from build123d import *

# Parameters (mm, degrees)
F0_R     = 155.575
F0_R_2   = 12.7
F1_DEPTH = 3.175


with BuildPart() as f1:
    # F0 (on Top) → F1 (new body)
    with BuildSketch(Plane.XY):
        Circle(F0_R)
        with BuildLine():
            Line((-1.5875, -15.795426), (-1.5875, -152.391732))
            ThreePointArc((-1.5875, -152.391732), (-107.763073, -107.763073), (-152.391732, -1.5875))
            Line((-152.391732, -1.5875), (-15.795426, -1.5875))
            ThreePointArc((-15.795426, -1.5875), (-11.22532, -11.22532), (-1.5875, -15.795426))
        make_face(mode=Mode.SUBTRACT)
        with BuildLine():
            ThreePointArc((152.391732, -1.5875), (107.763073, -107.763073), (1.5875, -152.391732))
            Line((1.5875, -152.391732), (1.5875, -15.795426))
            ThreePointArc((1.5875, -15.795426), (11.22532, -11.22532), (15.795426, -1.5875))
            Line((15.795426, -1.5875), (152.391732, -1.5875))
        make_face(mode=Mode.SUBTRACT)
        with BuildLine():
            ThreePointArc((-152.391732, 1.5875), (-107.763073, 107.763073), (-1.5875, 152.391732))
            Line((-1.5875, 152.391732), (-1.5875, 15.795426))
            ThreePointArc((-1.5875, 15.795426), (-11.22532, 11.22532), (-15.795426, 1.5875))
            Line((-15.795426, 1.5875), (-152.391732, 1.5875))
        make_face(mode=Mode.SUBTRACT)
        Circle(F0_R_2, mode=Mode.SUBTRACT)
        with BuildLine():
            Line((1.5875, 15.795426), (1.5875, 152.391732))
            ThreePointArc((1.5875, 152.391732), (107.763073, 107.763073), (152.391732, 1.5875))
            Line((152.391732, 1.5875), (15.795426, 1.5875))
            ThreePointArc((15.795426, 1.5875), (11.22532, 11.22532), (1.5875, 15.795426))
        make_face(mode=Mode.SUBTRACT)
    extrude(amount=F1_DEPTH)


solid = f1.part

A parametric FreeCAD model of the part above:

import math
import FreeCAD as App
import Part
import Sketcher
Q = App.Units.Quantity

doc = App.newDocument("Part")
body = doc.addObject("PartDesign::Body", "Body")

# Sketch on XY plane
sketch1 = body.newObject("Sketcher::SketchObject", "Sketch")
sketch1.AttachmentSupport = (doc.getObject("XY_Plane"), [""])
sketch1.MapMode = "FlatFace"
sketch1.addGeometry([
    Part.Circle(App.Vector(0, 0, 0), App.Vector(0, 0, 1), 155.575),  # 0
    Part.ArcOfCircle(Part.Circle(App.Vector(0.000002, 0.000002, 0), App.Vector(0, 0, 1), 15.875003), math.radians(-174.260823), math.radians(-95.739177)),  # 1
    Part.LineSegment(App.Vector(-1.5875, -15.795426, 0), App.Vector(-1.5875, -152.391732, 0)),  # 2
    Part.ArcOfCircle(Part.Circle(App.Vector(0.000003, 0.000003, 0), App.Vector(0, 0, 1), 152.400003), math.radians(-179.403157), math.radians(-90.596843)),  # 3
    Part.LineSegment(App.Vector(-152.391732, -1.5875, 0), App.Vector(-15.795426, -1.5875, 0)),  # 4
    Part.LineSegment(App.Vector(15.795426, -1.5875, 0), App.Vector(152.391732, -1.5875, 0)),  # 5
    Part.ArcOfCircle(Part.Circle(App.Vector(-0.000003, 0.000003, 0), App.Vector(0, 0, 1), 152.400003), math.radians(-89.403157), math.radians(-0.596843)),  # 6
    Part.LineSegment(App.Vector(1.5875, -152.391732, 0), App.Vector(1.5875, -15.795426, 0)),  # 7
    Part.ArcOfCircle(Part.Circle(App.Vector(-0.000002, 0.000002, 0), App.Vector(0, 0, 1), 15.875003), math.radians(-84.260823), math.radians(-5.739177)),  # 8
    Part.LineSegment(App.Vector(-15.795426, 1.5875, 0), App.Vector(-152.391732, 1.5875, 0)),  # 9
    Part.ArcOfCircle(Part.Circle(App.Vector(0.000003, -0.000003, 0), App.Vector(0, 0, 1), 152.400003), math.radians(90.596843), math.radians(179.403157)),  # 10
    Part.LineSegment(App.Vector(-1.5875, 152.391732, 0), App.Vector(-1.5875, 15.795426, 0)),  # 11
    Part.ArcOfCircle(Part.Circle(App.Vector(0.000002, -0.000002, 0), App.Vector(0, 0, 1), 15.875003), math.radians(95.739177), math.radians(174.260823)),  # 12
    Part.Circle(App.Vector(0, 0, 0), App.Vector(0, 0, 1), 12.7),  # 13
    Part.ArcOfCircle(Part.Circle(App.Vector(-0.000002, -0.000002, 0), App.Vector(0, 0, 1), 15.875003), math.radians(5.739177), math.radians(84.260823)),  # 14
    Part.LineSegment(App.Vector(1.5875, 15.795426, 0), App.Vector(1.5875, 152.391732, 0)),  # 15
    Part.ArcOfCircle(Part.Circle(App.Vector(-0.000003, -0.000003, 0), App.Vector(0, 0, 1), 152.400003), math.radians(0.596843), math.radians(89.403157)),  # 16
    Part.LineSegment(App.Vector(152.391732, 1.5875, 0), App.Vector(15.795426, 1.5875, 0)),  # 17
], False)
sketch1.addConstraint([
    Sketcher.Constraint("Coincident", 1, 2, 2, 1),
    Sketcher.Constraint("Coincident", 2, 2, 3, 2),
    Sketcher.Constraint("Coincident", 3, 1, 4, 1),
    Sketcher.Constraint("Coincident", 4, 2, 1, 1),
    Sketcher.Constraint("Coincident", 5, 2, 6, 2),
    Sketcher.Constraint("Coincident", 6, 1, 7, 1),
    Sketcher.Constraint("Coincident", 7, 2, 8, 1),
    Sketcher.Constraint("Coincident", 8, 2, 5, 1),
    Sketcher.Constraint("Coincident", 9, 2, 10, 2),
    Sketcher.Constraint("Coincident", 10, 1, 11, 1),
    Sketcher.Constraint("Coincident", 11, 2, 12, 1),
    Sketcher.Constraint("Coincident", 12, 2, 9, 1),
    Sketcher.Constraint("Coincident", 14, 2, 15, 1),
    Sketcher.Constraint("Coincident", 15, 2, 16, 2),
    Sketcher.Constraint("Coincident", 16, 1, 17, 1),
    Sketcher.Constraint("Coincident", 17, 2, 14, 1),
    Sketcher.Constraint("Vertical", 2),
    Sketcher.Constraint("Horizontal", 4),
    Sketcher.Constraint("Horizontal", 5),
    Sketcher.Constraint("Vertical", 7),
    Sketcher.Constraint("Horizontal", 9),
    Sketcher.Constraint("Vertical", 11),
    Sketcher.Constraint("Vertical", 15),
    Sketcher.Constraint("Horizontal", 17),
    Sketcher.Constraint("Coincident", 0, 3, -1, 1),
    Sketcher.Constraint("Coincident", 1, 3, -1, 1),
    Sketcher.Constraint("Coincident", 3, 3, -1, 1),
    Sketcher.Constraint("Coincident", 6, 3, -1, 1),
    Sketcher.Constraint("Coincident", 8, 3, -1, 1),
    Sketcher.Constraint("Coincident", 10, 3, -1, 1),
    Sketcher.Constraint("Coincident", 12, 3, -1, 1),
    Sketcher.Constraint("Coincident", 13, 3, -1, 1),
    Sketcher.Constraint("Coincident", 14, 3, -1, 1),
    Sketcher.Constraint("Coincident", 16, 3, -1, 1),
    Sketcher.Constraint("Equal", 3, 6),
    Sketcher.Constraint("Equal", 1, 8),
    Sketcher.Constraint("Equal", 6, 10),
    Sketcher.Constraint("Equal", 8, 12),
    Sketcher.Constraint("Equal", 12, 14),
    Sketcher.Constraint("Equal", 10, 16),
    Sketcher.Constraint("Horizontal", 4, 2, 5, 2),
    Sketcher.Constraint("Horizontal", 2, 2, 6, 1),
    Sketcher.Constraint("Horizontal", 11, 2, 14, 2),
    Sketcher.Constraint("Horizontal", 12, 2, 16, 1),
    Sketcher.Constraint("Vertical", 3, 1, 9, 2),
    Sketcher.Constraint("Vertical", 2, 2, 10, 1),
    Sketcher.Constraint("Equal", 17, 2),
    Sketcher.Constraint("Diameter", 13, Q("1 in")),
    Sketcher.Constraint("Radius", 3, Q("6.0000001 in")),
    Sketcher.Constraint("Diameter", 0, Q("12.25 in")),
    Sketcher.Constraint("Radius", 1, Q("0.6250001 in")),
    Sketcher.Constraint("DistanceX", 1, 2, -1, 1, Q("0.0625 in")),
])
pad1 = body.newObject("PartDesign::Pad", "Pad")
pad1.Profile = sketch1
pad1.Length = Q("0.125 in")

doc.recompute()
